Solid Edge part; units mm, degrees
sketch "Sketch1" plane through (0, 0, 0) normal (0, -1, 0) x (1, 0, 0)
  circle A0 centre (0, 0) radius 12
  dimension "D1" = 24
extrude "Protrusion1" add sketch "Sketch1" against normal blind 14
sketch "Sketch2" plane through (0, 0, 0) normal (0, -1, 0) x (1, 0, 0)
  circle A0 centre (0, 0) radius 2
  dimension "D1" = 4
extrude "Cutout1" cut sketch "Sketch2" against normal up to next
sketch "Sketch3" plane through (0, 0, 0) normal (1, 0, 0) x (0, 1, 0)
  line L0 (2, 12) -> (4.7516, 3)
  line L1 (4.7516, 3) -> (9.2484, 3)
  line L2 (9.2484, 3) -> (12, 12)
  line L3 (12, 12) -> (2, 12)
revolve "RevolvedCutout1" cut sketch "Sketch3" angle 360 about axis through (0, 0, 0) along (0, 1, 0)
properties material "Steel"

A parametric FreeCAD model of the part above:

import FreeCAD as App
import Part
import Sketcher
from FreeCAD import Vector
Q = App.Units.Quantity


def add_polygon(sketch, points):
    """Adds a closed chain of lines whose ends are joined by coincident constraints."""
    first, n = sketch.GeometryCount, len(points)
    for a, b in zip(points, points[1:] + points[:1]):
        sketch.addGeometry(Part.LineSegment(App.Vector(*a, 0), App.Vector(*b, 0)), False)
    for i in range(n):
        sketch.addConstraint(Sketcher.Constraint("Coincident", first + i, 2, first + (i + 1) % n, 1))

doc = App.newDocument("Part")
body = doc.addObject("PartDesign::Body", "Body")

# Sketch on XZ plane
sketch1 = body.newObject("Sketcher::SketchObject", "Sketch")
sketch1.AttachmentSupport = (doc.getObject("XZ_Plane"), [""])
sketch1.MapMode = "FlatFace"
sketch1.addGeometry(Part.Circle(Vector(0, 0, 0), Vector(0, 0, 1), 12), False)
sketch1.addConstraint([
    Sketcher.Constraint("Coincident", 0, 3, -1, 1),
    Sketcher.Constraint("Diameter", 0, Q("24 mm")),
])
pad1 = body.newObject("PartDesign::Pad", "Pad")
pad1.Profile = sketch1
pad1.Length = 14
pad1.Reversed = True

# Sketch on XZ plane
sketch2 = body.newObject("Sketcher::SketchObject", "Sketch001")
sketch2.AttachmentSupport = (doc.getObject("XZ_Plane"), [""])
sketch2.MapMode = "FlatFace"
sketch2.addGeometry(Part.Circle(Vector(0, 0, 0), Vector(0, 0, 1), 2), False)
sketch2.addConstraint([
    Sketcher.Constraint("Coincident", 0, 3, -1, 1),
    Sketcher.Constraint("Diameter", 0, Q("4 mm")),
])
pocket1 = body.newObject("PartDesign::Pocket", "Pocket")
pocket1.Profile = sketch2
pocket1.Type = "UpToFirst"

# Sketch on YZ plane
sketch3 = body.newObject("Sketcher::SketchObject", "Sketch002")
sketch3.AttachmentSupport = (doc.getObject("YZ_Plane"), [""])
sketch3.MapMode = "FlatFace"
add_polygon(sketch3, [(12, 12), (2, 12), (4.8, 3), (9.2, 3)])  # lines 0-3
sketch3.addConstraint([
    Sketcher.Constraint("Horizontal", 0),
    Sketcher.Constraint("Horizontal", 2),
    Sketcher.Constraint("Equal", 1, 3),
    Sketcher.Constraint("DistanceX", 0, 2, 0, 1, Q("10 mm")),
    Sketcher.Constraint("Angle", 1, Q("-72.9999 deg")),
    Sketcher.Constraint("DistanceX", -1, 1, 0, 2, Q("2 mm")),
    Sketcher.Constraint("DistanceY", -1, 1, 0, 2, Q("12 mm")),
    Sketcher.Constraint("DistanceY", -1, 1, 1, 2, Q("3 mm")),
])
groove = body.newObject("PartDesign::Groove", "Groove")
groove.Profile = sketch3
groove.ReferenceAxis = (sketch3, ["H_Axis"])
groove.Angle = 360

doc.recompute()
